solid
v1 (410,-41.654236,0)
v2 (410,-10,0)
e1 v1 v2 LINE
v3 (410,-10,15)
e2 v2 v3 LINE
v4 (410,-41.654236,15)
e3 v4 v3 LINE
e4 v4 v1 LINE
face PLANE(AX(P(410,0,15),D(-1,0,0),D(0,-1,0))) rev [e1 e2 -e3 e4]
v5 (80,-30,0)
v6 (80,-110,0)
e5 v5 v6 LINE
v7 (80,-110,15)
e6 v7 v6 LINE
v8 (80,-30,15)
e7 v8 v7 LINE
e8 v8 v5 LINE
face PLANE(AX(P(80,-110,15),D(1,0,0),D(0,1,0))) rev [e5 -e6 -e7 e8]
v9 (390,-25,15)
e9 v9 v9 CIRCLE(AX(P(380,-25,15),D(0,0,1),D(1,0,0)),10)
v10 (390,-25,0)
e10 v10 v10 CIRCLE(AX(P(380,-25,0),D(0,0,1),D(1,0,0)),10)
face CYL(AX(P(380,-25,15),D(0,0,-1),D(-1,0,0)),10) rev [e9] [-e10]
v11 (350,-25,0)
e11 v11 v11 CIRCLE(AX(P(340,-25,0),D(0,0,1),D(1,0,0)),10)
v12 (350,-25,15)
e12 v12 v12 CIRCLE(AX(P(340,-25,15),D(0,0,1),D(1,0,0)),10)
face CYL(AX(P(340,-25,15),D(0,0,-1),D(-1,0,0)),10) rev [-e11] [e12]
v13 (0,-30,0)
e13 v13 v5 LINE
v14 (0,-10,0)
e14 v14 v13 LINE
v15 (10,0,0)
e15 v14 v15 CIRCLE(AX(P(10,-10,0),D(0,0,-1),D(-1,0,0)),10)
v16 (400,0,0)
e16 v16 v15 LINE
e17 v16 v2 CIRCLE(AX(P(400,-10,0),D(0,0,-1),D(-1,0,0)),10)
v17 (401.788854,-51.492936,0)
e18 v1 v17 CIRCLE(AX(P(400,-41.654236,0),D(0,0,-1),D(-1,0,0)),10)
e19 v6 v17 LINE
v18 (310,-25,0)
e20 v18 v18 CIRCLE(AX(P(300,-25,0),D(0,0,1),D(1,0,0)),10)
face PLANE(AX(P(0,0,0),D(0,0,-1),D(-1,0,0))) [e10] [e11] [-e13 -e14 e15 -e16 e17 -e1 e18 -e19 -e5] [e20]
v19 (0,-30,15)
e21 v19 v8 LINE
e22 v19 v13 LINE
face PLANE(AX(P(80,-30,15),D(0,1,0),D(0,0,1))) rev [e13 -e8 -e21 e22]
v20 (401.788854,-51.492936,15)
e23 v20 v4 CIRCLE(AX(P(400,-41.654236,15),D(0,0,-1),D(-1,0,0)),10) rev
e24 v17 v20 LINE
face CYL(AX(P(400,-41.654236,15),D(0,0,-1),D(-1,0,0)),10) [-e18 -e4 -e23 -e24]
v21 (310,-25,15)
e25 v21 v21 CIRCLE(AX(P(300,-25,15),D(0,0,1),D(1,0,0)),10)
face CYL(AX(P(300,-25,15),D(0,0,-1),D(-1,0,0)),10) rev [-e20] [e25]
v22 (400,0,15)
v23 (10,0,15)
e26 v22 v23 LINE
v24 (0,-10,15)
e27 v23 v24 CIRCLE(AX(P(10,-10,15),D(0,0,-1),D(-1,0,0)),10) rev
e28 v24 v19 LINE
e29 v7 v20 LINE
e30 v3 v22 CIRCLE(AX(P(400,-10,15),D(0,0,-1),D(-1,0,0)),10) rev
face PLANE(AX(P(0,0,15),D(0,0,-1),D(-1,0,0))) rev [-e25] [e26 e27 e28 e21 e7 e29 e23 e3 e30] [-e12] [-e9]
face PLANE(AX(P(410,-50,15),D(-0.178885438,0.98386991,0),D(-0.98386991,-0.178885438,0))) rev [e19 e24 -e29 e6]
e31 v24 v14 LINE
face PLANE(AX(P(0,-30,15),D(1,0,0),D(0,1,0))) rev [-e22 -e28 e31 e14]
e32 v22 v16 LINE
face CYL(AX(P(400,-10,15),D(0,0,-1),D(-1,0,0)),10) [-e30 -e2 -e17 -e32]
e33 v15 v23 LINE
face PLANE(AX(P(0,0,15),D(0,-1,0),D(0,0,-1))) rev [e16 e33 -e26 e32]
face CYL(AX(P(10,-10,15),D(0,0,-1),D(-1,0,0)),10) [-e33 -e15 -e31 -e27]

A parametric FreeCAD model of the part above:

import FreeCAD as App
import Part
import Sketcher
from FreeCAD import Vector


def edges_at(feature, points):
    """Names of the edges that pass closest to the given points."""
    edges = feature.Shape.Edges
    near = lambda p: min(range(len(edges)), key=lambda i: edges[i].distToShape(Part.Vertex(*p))[0])
    return sorted({f"Edge{near(p) + 1}" for p in points})


def add_polygon(sketch, points):
    """Adds a closed chain of lines whose ends are joined by coincident constraints."""
    first, n = sketch.GeometryCount, len(points)
    for a, b in zip(points, points[1:] + points[:1]):
        sketch.addGeometry(Part.LineSegment(App.Vector(*a, 0), App.Vector(*b, 0)), False)
    for i in range(n):
        sketch.addConstraint(Sketcher.Constraint("Coincident", first + i, 2, first + (i + 1) % n, 1))

doc = App.newDocument("Part")
body = doc.addObject("PartDesign::Body", "Body")

# Sketch on XY plane
sketch1 = body.newObject("Sketcher::SketchObject", "Sketch")
sketch1.AttachmentSupport = (doc.getObject("XY_Plane"), [""])
sketch1.MapMode = "FlatFace"
add_polygon(sketch1, [(410, 0), (0, 0), (0, -30), (80, -30), (80, -110), (410, -50)])  # lines 0-5
sketch1.addGeometry(Part.Circle(Vector(380, -25, 0), Vector(0, 0, 1), 10), False)  # 6
sketch1.addGeometry(Part.Circle(Vector(340, -25, 0), Vector(0, 0, 1), 10), False)  # 7
sketch1.addGeometry(Part.Circle(Vector(300, -25, 0), Vector(0, 0, 1), 10), False)  # 8
sketch1.addConstraint([
    Sketcher.Constraint("Horizontal", 0),
    Sketcher.Constraint("Vertical", 1),
    Sketcher.Constraint("Horizontal", 2),
    Sketcher.Constraint("Vertical", 3),
    Sketcher.Constraint("Vertical", 5),
    Sketcher.Constraint("Coincident", 0, 2, -1, 1),
    Sketcher.Constraint("Equal", 6, 7),
    Sketcher.Constraint("Equal", 7, 8),
    Sketcher.Constraint("Horizontal", 6, 3, 7, 3),
    Sketcher.Constraint("Horizontal", 7, 3, 8, 3),
    Sketcher.Constraint("Equal", 2, 3),
    Sketcher.Constraint("Diameter", 6, 20.0),
    Sketcher.Constraint("DistanceX", 0, 2, 0, 1, 410.0),
    Sketcher.Constraint("DistanceX", 2, 1, 2, 2, 80.0),
    Sketcher.Constraint("DistanceY", 1, 2, 1, 1, 30.0),
    Sketcher.Constraint("DistanceY", 5, 1, 5, 2, 50.0),
    Sketcher.Constraint("DistanceX", -1, 1, 6, 3, 380.0),
    Sketcher.Constraint("DistanceY", 6, 3, -1, 1, 25.0),
    Sketcher.Constraint("DistanceX", -1, 1, 7, 3, 340.0),
    Sketcher.Constraint("DistanceX", -1, 1, 8, 3, 300.0),
])
pad1 = body.newObject("PartDesign::Pad", "Pad")
pad1.Profile = sketch1
pad1.Length = 15
doc.recompute()

fillet = body.newObject("PartDesign::Fillet", "Fillet")
fillet.Base = (pad1, edges_at(pad1, [(0, 0, 7.5), (410, 0, 7.5), (410, -50, 7.5)]))
fillet.Radius = 10

doc.recompute()
